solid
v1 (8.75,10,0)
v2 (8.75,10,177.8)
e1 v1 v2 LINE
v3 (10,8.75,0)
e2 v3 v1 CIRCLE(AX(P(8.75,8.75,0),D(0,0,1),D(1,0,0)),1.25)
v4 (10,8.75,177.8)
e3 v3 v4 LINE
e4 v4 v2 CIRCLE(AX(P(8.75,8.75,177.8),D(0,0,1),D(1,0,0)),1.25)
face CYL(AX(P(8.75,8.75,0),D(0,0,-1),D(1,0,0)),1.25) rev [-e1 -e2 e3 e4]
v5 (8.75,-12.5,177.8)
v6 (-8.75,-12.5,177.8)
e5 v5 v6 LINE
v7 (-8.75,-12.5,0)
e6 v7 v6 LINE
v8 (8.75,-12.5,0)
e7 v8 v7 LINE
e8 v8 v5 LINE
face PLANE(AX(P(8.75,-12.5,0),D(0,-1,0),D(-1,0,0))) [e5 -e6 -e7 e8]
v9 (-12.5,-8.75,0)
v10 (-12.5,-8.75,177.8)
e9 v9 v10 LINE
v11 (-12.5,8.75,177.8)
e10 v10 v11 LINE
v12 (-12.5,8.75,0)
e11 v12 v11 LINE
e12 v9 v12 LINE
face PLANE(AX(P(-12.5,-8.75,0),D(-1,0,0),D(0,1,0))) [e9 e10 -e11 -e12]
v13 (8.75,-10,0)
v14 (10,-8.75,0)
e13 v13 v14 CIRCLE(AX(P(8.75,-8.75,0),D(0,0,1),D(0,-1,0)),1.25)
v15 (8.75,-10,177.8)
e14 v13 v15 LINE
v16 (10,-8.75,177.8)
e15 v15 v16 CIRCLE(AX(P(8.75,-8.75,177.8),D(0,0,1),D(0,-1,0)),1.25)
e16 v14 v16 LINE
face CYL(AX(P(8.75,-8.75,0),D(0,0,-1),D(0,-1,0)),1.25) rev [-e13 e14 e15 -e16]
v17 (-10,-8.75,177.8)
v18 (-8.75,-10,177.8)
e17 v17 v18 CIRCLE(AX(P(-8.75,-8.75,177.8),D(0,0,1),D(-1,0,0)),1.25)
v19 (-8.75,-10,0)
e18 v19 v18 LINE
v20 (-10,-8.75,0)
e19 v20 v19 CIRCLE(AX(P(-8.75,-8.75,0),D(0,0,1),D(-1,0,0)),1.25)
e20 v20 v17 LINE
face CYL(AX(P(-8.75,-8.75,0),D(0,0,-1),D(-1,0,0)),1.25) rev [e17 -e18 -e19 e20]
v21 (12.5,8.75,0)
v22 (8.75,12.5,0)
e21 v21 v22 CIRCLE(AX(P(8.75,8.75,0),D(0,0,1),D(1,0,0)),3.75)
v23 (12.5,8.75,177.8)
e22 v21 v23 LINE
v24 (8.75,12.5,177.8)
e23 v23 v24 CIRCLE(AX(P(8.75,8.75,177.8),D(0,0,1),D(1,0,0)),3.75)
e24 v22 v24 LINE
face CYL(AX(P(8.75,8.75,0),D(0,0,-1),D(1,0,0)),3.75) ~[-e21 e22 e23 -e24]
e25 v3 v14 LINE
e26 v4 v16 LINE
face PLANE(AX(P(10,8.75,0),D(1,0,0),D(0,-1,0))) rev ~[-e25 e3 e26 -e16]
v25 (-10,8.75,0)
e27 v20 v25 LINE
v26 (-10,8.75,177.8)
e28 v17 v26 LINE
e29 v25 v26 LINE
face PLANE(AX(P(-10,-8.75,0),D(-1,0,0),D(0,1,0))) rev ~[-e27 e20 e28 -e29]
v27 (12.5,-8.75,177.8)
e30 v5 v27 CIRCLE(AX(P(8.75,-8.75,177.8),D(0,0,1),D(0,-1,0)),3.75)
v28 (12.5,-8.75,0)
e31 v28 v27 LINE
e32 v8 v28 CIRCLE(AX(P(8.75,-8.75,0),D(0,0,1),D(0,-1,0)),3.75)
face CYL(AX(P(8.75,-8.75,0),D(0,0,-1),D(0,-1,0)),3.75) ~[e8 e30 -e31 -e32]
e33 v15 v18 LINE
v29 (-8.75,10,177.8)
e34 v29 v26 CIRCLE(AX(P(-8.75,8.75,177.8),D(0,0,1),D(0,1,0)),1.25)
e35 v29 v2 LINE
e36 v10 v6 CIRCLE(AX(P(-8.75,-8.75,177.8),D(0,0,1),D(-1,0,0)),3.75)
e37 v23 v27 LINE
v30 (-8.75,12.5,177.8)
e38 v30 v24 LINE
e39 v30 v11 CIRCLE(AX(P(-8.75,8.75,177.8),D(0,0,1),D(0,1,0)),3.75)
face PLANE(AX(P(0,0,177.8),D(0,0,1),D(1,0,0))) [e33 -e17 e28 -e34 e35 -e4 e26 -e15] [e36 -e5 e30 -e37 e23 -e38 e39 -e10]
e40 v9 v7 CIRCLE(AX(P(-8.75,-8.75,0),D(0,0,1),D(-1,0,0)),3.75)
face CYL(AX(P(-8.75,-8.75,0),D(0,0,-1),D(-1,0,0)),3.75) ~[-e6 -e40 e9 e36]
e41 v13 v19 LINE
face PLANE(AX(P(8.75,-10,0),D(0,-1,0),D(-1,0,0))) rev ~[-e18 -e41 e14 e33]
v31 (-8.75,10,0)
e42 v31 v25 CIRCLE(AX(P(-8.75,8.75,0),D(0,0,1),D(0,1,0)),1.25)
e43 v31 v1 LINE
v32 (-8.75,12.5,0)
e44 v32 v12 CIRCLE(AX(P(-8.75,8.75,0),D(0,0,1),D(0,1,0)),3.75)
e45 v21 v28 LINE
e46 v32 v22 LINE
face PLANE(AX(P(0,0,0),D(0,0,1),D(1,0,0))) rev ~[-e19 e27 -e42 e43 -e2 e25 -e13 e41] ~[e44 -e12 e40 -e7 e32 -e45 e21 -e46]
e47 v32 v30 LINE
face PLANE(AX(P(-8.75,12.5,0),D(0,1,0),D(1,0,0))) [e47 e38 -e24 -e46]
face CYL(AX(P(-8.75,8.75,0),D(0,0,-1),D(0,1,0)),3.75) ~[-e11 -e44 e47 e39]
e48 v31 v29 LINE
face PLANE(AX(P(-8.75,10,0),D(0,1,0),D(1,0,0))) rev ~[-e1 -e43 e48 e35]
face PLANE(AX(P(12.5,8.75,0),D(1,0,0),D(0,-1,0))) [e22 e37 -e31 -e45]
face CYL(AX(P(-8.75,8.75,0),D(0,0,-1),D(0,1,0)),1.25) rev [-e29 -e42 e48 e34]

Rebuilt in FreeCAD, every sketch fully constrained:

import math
import FreeCAD as App
import Part
import Sketcher
Q = App.Units.Quantity

doc = App.newDocument("Part")
body = doc.addObject("PartDesign::Body", "Body")

# Sketch on XY plane
sketch1 = body.newObject("Sketcher::SketchObject", "Sketch")
sketch1.AttachmentSupport = (doc.getObject("XY_Plane"), [""])
sketch1.MapMode = "FlatFace"
sketch1.addGeometry([
    Part.LineSegment(App.Vector(-12.5, 8.75, 0), App.Vector(-12.5, -8.75, 0)),  # 0
    Part.ArcOfCircle(Part.Circle(App.Vector(-8.75, -8.75, 0), App.Vector(0, 0, 1), 3.75), math.radians(180), math.radians(270)),  # 1
    Part.LineSegment(App.Vector(-8.75, -12.5, 0), App.Vector(8.75, -12.5, 0)),  # 2
    Part.ArcOfCircle(Part.Circle(App.Vector(8.75, -8.75, 0), App.Vector(0, 0, 1), 3.75), math.radians(-90), math.radians(0)),  # 3
    Part.LineSegment(App.Vector(12.5, -8.75, 0), App.Vector(12.5, 8.75, 0)),  # 4
    Part.ArcOfCircle(Part.Circle(App.Vector(8.75, 8.75, 0), App.Vector(0, 0, 1), 3.75), math.radians(0), math.radians(90)),  # 5
    Part.LineSegment(App.Vector(8.75, 12.5, 0), App.Vector(-8.75, 12.5, 0)),  # 6
    Part.ArcOfCircle(Part.Circle(App.Vector(-8.75, 8.75, 0), App.Vector(0, 0, 1), 3.75), math.radians(90), math.radians(180)),  # 7
    Part.ArcOfCircle(Part.Circle(App.Vector(-8.75, 8.75, 0), App.Vector(0, 0, 1), 1.25), math.radians(90), math.radians(180)),  # 8
    Part.LineSegment(App.Vector(-8.75, 10, 0), App.Vector(8.75, 10, 0)),  # 9
    Part.ArcOfCircle(Part.Circle(App.Vector(8.75, 8.75, 0), App.Vector(0, 0, 1), 1.25), math.radians(0), math.radians(90)),  # 10
    Part.LineSegment(App.Vector(10, 8.75, 0), App.Vector(10, -8.75, 0)),  # 11
    Part.ArcOfCircle(Part.Circle(App.Vector(8.75, -8.75, 0), App.Vector(0, 0, 1), 1.25), math.radians(-90), math.radians(0)),  # 12
    Part.LineSegment(App.Vector(8.75, -10, 0), App.Vector(-8.75, -10, 0)),  # 13
    Part.ArcOfCircle(Part.Circle(App.Vector(-8.75, -8.75, 0), App.Vector(0, 0, 1), 1.25), math.radians(180), math.radians(270)),  # 14
    Part.LineSegment(App.Vector(-10, -8.75, 0), App.Vector(-10, 8.75, 0)),  # 15
], False)
sketch1.addConstraint([
    Sketcher.Constraint("Tangent", 0, 2, 1, 1),
    Sketcher.Constraint("Tangent", 1, 2, 2, 1),
    Sketcher.Constraint("Tangent", 2, 2, 3, 1),
    Sketcher.Constraint("Tangent", 3, 2, 4, 1),
    Sketcher.Constraint("Tangent", 4, 2, 5, 1),
    Sketcher.Constraint("Tangent", 5, 2, 6, 1),
    Sketcher.Constraint("Tangent", 6, 2, 7, 1),
    Sketcher.Constraint("Tangent", 7, 2, 0, 1),
    Sketcher.Constraint("Tangent", 8, 1, 9, 1),
    Sketcher.Constraint("Tangent", 9, 2, 10, 2),
    Sketcher.Constraint("Tangent", 10, 1, 11, 1),
    Sketcher.Constraint("Tangent", 11, 2, 12, 2),
    Sketcher.Constraint("Tangent", 12, 1, 13, 1),
    Sketcher.Constraint("Tangent", 13, 2, 14, 2),
    Sketcher.Constraint("Tangent", 14, 1, 15, 1),
    Sketcher.Constraint("Tangent", 15, 2, 8, 2),
    Sketcher.Constraint("Vertical", 0),
    Sketcher.Constraint("Horizontal", 2),
    Sketcher.Constraint("Vertical", 4),
    Sketcher.Constraint("Horizontal", 6),
    Sketcher.Constraint("Horizontal", 9),
    Sketcher.Constraint("Vertical", 11),
    Sketcher.Constraint("Horizontal", 13),
    Sketcher.Constraint("Vertical", 15),
    Sketcher.Constraint("Coincident", 8, 3, 7, 3),
    Sketcher.Constraint("Coincident", 10, 3, 5, 3),
    Sketcher.Constraint("Coincident", 12, 3, 3, 3),
    Sketcher.Constraint("Equal", 1, 3),
    Sketcher.Constraint("Equal", 3, 5),
    Sketcher.Constraint("Equal", 5, 7),
    Sketcher.Constraint("Equal", 12, 14),
    Sketcher.Constraint("Symmetric", 1, 3, 5, 3, -1, 1),
    Sketcher.Constraint("Equal", 13, 0),
    Sketcher.Constraint("Radius", 1, Q("3.75 mm")),
    Sketcher.Constraint("Radius", 8, Q("1.25 mm")),
    Sketcher.Constraint("DistanceX", 0, 2, -1, 1, Q("12.5 mm")),
])
pad1 = body.newObject("PartDesign::Pad", "Pad")
pad1.Profile = sketch1
pad1.Length = 177.8

doc.recompute()
